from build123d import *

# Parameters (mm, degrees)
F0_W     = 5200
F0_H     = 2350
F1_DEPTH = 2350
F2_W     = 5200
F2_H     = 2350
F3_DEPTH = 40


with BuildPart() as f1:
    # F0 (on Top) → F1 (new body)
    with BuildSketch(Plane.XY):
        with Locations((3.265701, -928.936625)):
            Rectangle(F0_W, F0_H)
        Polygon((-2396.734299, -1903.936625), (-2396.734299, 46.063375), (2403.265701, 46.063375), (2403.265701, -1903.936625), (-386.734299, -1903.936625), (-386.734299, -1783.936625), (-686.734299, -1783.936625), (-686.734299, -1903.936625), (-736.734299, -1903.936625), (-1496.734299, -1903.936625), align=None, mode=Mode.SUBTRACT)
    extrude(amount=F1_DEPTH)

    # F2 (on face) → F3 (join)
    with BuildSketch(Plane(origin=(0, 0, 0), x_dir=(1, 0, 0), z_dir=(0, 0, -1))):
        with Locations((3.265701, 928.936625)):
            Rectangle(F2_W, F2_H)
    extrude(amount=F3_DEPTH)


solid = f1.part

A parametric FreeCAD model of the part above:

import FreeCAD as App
import Part
import Sketcher

V = App.Vector

doc = App.newDocument("Part")
body = doc.addObject("PartDesign::Body", "Body")

# Sketch on XY plane
sketch1 = body.newObject("Sketcher::SketchObject", "Sketch")
sketch1.AttachmentSupport = (doc.getObject("XY_Plane"), [""])
sketch1.MapMode = "FlatFace"
sketch1.addGeometry([
    Part.LineSegment(V(-2596.734299, 246.063375, 0), V(-2596.734299, -2103.936625, 0)),  # 0
    Part.LineSegment(V(-2596.734299, -2103.936625, 0), V(2603.265701, -2103.936625, 0)),  # 1
    Part.LineSegment(V(2603.265701, -2103.936625, 0), V(2603.265701, 246.063375, 0)),  # 2
    Part.LineSegment(V(2603.265701, 246.063375, 0), V(-2596.734299, 246.063375, 0)),  # 3
    Part.LineSegment(V(-686.734299, -1903.936625, 0), V(-2396.734299, -1903.936625, 0)),  # 4
    Part.LineSegment(V(-2396.734299, -1903.936625, 0), V(-2396.734299, 46.063375, 0)),  # 5
    Part.LineSegment(V(-2396.734299, 46.063375, 0), V(2403.265701, 46.063375, 0)),  # 6
    Part.LineSegment(V(2403.265701, 46.063375, 0), V(2403.265701, -1903.936625, 0)),  # 7
    Part.LineSegment(V(2403.265701, -1903.936625, 0), V(-386.734299, -1903.936625, 0)),  # 8
    Part.LineSegment(V(-386.734299, -1903.936625, 0), V(-386.734299, -1783.936625, 0)),  # 9
    Part.LineSegment(V(-386.734299, -1783.936625, 0), V(-686.734299, -1783.936625, 0)),  # 10
    Part.LineSegment(V(-686.734299, -1783.936625, 0), V(-686.734299, -1903.936625, 0)),  # 11
], False)
sketch1.addConstraint([
    Sketcher.Constraint("Coincident", 0, 2, 1, 1),
    Sketcher.Constraint("Coincident", 1, 2, 2, 1),
    Sketcher.Constraint("Coincident", 2, 2, 3, 1),
    Sketcher.Constraint("Coincident", 3, 2, 0, 1),
    Sketcher.Constraint("Coincident", 4, 2, 5, 1),
    Sketcher.Constraint("Coincident", 5, 2, 6, 1),
    Sketcher.Constraint("Coincident", 6, 2, 7, 1),
    Sketcher.Constraint("Coincident", 7, 2, 8, 1),
    Sketcher.Constraint("Coincident", 8, 2, 9, 1),
    Sketcher.Constraint("Coincident", 9, 2, 10, 1),
    Sketcher.Constraint("Coincident", 10, 2, 11, 1),
    Sketcher.Constraint("Coincident", 11, 2, 4, 1),
    Sketcher.Constraint("Vertical", 0),
    Sketcher.Constraint("Horizontal", 1),
    Sketcher.Constraint("Vertical", 2),
    Sketcher.Constraint("Horizontal", 3),
    Sketcher.Constraint("Horizontal", 4),
    Sketcher.Constraint("Vertical", 5),
    Sketcher.Constraint("Horizontal", 6),
    Sketcher.Constraint("Vertical", 7),
    Sketcher.Constraint("Horizontal", 8),
    Sketcher.Constraint("Vertical", 9),
    Sketcher.Constraint("Horizontal", 10),
    Sketcher.Constraint("Vertical", 11),
    Sketcher.Constraint("Horizontal", 4, 2, 7, 2),
    Sketcher.Constraint("DistanceX", 1, 1, 1, 2, 5200.0),
    Sketcher.Constraint("DistanceX", 4, 2, 4, 1, 1710.0),
    Sketcher.Constraint("DistanceX", 6, 1, 6, 2, 4800.0),
    Sketcher.Constraint("DistanceX", 8, 2, 8, 1, 2790.0),
    Sketcher.Constraint("DistanceY", 0, 2, 0, 1, 2350.0),
    Sketcher.Constraint("DistanceY", 5, 1, 5, 2, 1950.0),
    Sketcher.Constraint("DistanceY", 9, 1, 9, 2, 120.0),
    Sketcher.Constraint("DistanceX", 0, 2, 4, 2, 200.0),
    Sketcher.Constraint("DistanceY", 0, 2, 4, 2, 200.0),
    Sketcher.Constraint("DistanceX", 0, 2, -1, 1, 2596.734299),
    Sketcher.Constraint("DistanceY", 0, 2, -1, 1, 2103.936625),
])
pad1 = body.newObject("PartDesign::Pad", "Pad")
pad1.Profile = sketch1
pad1.Length = 2350

# Sketch on XY plane
sketch2 = body.newObject("Sketcher::SketchObject", "Sketch001")
sketch2.AttachmentSupport = (doc.getObject("XY_Plane"), [""])
sketch2.MapMode = "FlatFace"
sketch2.addGeometry([
    Part.LineSegment(V(-2596.734299, -2103.936625, 0), V(-2596.734299, 246.063375, 0)),
    Part.LineSegment(V(-2596.734299, 246.063375, 0), V(2603.265701, 246.063375, 0)),
    Part.LineSegment(V(2603.265701, 246.063375, 0), V(2603.265701, -2103.936625, 0)),
    Part.LineSegment(V(2603.265701, -2103.936625, 0), V(-2596.734299, -2103.936625, 0)),
], False)
sketch2.addConstraint([
    Sketcher.Constraint("Coincident", 0, 2, 1, 1),
    Sketcher.Constraint("Coincident", 1, 2, 2, 1),
    Sketcher.Constraint("Coincident", 2, 2, 3, 1),
    Sketcher.Constraint("Coincident", 3, 2, 0, 1),
    Sketcher.Constraint("Vertical", 0),
    Sketcher.Constraint("Horizontal", 1),
    Sketcher.Constraint("Vertical", 2),
    Sketcher.Constraint("Horizontal", 3),
    Sketcher.Constraint("DistanceX", 1, 1, 1, 2, 5200.0),
    Sketcher.Constraint("DistanceY", 0, 1, 0, 2, 2350.0),
    Sketcher.Constraint("DistanceX", 0, 2, -1, 1, 2596.734299),
    Sketcher.Constraint("DistanceY", -1, 1, 0, 2, 246.063375),
])
pad2 = body.newObject("PartDesign::Pad", "Pad001")
pad2.Profile = sketch2
pad2.Length = 40
pad2.Reversed = True

doc.recompute()
